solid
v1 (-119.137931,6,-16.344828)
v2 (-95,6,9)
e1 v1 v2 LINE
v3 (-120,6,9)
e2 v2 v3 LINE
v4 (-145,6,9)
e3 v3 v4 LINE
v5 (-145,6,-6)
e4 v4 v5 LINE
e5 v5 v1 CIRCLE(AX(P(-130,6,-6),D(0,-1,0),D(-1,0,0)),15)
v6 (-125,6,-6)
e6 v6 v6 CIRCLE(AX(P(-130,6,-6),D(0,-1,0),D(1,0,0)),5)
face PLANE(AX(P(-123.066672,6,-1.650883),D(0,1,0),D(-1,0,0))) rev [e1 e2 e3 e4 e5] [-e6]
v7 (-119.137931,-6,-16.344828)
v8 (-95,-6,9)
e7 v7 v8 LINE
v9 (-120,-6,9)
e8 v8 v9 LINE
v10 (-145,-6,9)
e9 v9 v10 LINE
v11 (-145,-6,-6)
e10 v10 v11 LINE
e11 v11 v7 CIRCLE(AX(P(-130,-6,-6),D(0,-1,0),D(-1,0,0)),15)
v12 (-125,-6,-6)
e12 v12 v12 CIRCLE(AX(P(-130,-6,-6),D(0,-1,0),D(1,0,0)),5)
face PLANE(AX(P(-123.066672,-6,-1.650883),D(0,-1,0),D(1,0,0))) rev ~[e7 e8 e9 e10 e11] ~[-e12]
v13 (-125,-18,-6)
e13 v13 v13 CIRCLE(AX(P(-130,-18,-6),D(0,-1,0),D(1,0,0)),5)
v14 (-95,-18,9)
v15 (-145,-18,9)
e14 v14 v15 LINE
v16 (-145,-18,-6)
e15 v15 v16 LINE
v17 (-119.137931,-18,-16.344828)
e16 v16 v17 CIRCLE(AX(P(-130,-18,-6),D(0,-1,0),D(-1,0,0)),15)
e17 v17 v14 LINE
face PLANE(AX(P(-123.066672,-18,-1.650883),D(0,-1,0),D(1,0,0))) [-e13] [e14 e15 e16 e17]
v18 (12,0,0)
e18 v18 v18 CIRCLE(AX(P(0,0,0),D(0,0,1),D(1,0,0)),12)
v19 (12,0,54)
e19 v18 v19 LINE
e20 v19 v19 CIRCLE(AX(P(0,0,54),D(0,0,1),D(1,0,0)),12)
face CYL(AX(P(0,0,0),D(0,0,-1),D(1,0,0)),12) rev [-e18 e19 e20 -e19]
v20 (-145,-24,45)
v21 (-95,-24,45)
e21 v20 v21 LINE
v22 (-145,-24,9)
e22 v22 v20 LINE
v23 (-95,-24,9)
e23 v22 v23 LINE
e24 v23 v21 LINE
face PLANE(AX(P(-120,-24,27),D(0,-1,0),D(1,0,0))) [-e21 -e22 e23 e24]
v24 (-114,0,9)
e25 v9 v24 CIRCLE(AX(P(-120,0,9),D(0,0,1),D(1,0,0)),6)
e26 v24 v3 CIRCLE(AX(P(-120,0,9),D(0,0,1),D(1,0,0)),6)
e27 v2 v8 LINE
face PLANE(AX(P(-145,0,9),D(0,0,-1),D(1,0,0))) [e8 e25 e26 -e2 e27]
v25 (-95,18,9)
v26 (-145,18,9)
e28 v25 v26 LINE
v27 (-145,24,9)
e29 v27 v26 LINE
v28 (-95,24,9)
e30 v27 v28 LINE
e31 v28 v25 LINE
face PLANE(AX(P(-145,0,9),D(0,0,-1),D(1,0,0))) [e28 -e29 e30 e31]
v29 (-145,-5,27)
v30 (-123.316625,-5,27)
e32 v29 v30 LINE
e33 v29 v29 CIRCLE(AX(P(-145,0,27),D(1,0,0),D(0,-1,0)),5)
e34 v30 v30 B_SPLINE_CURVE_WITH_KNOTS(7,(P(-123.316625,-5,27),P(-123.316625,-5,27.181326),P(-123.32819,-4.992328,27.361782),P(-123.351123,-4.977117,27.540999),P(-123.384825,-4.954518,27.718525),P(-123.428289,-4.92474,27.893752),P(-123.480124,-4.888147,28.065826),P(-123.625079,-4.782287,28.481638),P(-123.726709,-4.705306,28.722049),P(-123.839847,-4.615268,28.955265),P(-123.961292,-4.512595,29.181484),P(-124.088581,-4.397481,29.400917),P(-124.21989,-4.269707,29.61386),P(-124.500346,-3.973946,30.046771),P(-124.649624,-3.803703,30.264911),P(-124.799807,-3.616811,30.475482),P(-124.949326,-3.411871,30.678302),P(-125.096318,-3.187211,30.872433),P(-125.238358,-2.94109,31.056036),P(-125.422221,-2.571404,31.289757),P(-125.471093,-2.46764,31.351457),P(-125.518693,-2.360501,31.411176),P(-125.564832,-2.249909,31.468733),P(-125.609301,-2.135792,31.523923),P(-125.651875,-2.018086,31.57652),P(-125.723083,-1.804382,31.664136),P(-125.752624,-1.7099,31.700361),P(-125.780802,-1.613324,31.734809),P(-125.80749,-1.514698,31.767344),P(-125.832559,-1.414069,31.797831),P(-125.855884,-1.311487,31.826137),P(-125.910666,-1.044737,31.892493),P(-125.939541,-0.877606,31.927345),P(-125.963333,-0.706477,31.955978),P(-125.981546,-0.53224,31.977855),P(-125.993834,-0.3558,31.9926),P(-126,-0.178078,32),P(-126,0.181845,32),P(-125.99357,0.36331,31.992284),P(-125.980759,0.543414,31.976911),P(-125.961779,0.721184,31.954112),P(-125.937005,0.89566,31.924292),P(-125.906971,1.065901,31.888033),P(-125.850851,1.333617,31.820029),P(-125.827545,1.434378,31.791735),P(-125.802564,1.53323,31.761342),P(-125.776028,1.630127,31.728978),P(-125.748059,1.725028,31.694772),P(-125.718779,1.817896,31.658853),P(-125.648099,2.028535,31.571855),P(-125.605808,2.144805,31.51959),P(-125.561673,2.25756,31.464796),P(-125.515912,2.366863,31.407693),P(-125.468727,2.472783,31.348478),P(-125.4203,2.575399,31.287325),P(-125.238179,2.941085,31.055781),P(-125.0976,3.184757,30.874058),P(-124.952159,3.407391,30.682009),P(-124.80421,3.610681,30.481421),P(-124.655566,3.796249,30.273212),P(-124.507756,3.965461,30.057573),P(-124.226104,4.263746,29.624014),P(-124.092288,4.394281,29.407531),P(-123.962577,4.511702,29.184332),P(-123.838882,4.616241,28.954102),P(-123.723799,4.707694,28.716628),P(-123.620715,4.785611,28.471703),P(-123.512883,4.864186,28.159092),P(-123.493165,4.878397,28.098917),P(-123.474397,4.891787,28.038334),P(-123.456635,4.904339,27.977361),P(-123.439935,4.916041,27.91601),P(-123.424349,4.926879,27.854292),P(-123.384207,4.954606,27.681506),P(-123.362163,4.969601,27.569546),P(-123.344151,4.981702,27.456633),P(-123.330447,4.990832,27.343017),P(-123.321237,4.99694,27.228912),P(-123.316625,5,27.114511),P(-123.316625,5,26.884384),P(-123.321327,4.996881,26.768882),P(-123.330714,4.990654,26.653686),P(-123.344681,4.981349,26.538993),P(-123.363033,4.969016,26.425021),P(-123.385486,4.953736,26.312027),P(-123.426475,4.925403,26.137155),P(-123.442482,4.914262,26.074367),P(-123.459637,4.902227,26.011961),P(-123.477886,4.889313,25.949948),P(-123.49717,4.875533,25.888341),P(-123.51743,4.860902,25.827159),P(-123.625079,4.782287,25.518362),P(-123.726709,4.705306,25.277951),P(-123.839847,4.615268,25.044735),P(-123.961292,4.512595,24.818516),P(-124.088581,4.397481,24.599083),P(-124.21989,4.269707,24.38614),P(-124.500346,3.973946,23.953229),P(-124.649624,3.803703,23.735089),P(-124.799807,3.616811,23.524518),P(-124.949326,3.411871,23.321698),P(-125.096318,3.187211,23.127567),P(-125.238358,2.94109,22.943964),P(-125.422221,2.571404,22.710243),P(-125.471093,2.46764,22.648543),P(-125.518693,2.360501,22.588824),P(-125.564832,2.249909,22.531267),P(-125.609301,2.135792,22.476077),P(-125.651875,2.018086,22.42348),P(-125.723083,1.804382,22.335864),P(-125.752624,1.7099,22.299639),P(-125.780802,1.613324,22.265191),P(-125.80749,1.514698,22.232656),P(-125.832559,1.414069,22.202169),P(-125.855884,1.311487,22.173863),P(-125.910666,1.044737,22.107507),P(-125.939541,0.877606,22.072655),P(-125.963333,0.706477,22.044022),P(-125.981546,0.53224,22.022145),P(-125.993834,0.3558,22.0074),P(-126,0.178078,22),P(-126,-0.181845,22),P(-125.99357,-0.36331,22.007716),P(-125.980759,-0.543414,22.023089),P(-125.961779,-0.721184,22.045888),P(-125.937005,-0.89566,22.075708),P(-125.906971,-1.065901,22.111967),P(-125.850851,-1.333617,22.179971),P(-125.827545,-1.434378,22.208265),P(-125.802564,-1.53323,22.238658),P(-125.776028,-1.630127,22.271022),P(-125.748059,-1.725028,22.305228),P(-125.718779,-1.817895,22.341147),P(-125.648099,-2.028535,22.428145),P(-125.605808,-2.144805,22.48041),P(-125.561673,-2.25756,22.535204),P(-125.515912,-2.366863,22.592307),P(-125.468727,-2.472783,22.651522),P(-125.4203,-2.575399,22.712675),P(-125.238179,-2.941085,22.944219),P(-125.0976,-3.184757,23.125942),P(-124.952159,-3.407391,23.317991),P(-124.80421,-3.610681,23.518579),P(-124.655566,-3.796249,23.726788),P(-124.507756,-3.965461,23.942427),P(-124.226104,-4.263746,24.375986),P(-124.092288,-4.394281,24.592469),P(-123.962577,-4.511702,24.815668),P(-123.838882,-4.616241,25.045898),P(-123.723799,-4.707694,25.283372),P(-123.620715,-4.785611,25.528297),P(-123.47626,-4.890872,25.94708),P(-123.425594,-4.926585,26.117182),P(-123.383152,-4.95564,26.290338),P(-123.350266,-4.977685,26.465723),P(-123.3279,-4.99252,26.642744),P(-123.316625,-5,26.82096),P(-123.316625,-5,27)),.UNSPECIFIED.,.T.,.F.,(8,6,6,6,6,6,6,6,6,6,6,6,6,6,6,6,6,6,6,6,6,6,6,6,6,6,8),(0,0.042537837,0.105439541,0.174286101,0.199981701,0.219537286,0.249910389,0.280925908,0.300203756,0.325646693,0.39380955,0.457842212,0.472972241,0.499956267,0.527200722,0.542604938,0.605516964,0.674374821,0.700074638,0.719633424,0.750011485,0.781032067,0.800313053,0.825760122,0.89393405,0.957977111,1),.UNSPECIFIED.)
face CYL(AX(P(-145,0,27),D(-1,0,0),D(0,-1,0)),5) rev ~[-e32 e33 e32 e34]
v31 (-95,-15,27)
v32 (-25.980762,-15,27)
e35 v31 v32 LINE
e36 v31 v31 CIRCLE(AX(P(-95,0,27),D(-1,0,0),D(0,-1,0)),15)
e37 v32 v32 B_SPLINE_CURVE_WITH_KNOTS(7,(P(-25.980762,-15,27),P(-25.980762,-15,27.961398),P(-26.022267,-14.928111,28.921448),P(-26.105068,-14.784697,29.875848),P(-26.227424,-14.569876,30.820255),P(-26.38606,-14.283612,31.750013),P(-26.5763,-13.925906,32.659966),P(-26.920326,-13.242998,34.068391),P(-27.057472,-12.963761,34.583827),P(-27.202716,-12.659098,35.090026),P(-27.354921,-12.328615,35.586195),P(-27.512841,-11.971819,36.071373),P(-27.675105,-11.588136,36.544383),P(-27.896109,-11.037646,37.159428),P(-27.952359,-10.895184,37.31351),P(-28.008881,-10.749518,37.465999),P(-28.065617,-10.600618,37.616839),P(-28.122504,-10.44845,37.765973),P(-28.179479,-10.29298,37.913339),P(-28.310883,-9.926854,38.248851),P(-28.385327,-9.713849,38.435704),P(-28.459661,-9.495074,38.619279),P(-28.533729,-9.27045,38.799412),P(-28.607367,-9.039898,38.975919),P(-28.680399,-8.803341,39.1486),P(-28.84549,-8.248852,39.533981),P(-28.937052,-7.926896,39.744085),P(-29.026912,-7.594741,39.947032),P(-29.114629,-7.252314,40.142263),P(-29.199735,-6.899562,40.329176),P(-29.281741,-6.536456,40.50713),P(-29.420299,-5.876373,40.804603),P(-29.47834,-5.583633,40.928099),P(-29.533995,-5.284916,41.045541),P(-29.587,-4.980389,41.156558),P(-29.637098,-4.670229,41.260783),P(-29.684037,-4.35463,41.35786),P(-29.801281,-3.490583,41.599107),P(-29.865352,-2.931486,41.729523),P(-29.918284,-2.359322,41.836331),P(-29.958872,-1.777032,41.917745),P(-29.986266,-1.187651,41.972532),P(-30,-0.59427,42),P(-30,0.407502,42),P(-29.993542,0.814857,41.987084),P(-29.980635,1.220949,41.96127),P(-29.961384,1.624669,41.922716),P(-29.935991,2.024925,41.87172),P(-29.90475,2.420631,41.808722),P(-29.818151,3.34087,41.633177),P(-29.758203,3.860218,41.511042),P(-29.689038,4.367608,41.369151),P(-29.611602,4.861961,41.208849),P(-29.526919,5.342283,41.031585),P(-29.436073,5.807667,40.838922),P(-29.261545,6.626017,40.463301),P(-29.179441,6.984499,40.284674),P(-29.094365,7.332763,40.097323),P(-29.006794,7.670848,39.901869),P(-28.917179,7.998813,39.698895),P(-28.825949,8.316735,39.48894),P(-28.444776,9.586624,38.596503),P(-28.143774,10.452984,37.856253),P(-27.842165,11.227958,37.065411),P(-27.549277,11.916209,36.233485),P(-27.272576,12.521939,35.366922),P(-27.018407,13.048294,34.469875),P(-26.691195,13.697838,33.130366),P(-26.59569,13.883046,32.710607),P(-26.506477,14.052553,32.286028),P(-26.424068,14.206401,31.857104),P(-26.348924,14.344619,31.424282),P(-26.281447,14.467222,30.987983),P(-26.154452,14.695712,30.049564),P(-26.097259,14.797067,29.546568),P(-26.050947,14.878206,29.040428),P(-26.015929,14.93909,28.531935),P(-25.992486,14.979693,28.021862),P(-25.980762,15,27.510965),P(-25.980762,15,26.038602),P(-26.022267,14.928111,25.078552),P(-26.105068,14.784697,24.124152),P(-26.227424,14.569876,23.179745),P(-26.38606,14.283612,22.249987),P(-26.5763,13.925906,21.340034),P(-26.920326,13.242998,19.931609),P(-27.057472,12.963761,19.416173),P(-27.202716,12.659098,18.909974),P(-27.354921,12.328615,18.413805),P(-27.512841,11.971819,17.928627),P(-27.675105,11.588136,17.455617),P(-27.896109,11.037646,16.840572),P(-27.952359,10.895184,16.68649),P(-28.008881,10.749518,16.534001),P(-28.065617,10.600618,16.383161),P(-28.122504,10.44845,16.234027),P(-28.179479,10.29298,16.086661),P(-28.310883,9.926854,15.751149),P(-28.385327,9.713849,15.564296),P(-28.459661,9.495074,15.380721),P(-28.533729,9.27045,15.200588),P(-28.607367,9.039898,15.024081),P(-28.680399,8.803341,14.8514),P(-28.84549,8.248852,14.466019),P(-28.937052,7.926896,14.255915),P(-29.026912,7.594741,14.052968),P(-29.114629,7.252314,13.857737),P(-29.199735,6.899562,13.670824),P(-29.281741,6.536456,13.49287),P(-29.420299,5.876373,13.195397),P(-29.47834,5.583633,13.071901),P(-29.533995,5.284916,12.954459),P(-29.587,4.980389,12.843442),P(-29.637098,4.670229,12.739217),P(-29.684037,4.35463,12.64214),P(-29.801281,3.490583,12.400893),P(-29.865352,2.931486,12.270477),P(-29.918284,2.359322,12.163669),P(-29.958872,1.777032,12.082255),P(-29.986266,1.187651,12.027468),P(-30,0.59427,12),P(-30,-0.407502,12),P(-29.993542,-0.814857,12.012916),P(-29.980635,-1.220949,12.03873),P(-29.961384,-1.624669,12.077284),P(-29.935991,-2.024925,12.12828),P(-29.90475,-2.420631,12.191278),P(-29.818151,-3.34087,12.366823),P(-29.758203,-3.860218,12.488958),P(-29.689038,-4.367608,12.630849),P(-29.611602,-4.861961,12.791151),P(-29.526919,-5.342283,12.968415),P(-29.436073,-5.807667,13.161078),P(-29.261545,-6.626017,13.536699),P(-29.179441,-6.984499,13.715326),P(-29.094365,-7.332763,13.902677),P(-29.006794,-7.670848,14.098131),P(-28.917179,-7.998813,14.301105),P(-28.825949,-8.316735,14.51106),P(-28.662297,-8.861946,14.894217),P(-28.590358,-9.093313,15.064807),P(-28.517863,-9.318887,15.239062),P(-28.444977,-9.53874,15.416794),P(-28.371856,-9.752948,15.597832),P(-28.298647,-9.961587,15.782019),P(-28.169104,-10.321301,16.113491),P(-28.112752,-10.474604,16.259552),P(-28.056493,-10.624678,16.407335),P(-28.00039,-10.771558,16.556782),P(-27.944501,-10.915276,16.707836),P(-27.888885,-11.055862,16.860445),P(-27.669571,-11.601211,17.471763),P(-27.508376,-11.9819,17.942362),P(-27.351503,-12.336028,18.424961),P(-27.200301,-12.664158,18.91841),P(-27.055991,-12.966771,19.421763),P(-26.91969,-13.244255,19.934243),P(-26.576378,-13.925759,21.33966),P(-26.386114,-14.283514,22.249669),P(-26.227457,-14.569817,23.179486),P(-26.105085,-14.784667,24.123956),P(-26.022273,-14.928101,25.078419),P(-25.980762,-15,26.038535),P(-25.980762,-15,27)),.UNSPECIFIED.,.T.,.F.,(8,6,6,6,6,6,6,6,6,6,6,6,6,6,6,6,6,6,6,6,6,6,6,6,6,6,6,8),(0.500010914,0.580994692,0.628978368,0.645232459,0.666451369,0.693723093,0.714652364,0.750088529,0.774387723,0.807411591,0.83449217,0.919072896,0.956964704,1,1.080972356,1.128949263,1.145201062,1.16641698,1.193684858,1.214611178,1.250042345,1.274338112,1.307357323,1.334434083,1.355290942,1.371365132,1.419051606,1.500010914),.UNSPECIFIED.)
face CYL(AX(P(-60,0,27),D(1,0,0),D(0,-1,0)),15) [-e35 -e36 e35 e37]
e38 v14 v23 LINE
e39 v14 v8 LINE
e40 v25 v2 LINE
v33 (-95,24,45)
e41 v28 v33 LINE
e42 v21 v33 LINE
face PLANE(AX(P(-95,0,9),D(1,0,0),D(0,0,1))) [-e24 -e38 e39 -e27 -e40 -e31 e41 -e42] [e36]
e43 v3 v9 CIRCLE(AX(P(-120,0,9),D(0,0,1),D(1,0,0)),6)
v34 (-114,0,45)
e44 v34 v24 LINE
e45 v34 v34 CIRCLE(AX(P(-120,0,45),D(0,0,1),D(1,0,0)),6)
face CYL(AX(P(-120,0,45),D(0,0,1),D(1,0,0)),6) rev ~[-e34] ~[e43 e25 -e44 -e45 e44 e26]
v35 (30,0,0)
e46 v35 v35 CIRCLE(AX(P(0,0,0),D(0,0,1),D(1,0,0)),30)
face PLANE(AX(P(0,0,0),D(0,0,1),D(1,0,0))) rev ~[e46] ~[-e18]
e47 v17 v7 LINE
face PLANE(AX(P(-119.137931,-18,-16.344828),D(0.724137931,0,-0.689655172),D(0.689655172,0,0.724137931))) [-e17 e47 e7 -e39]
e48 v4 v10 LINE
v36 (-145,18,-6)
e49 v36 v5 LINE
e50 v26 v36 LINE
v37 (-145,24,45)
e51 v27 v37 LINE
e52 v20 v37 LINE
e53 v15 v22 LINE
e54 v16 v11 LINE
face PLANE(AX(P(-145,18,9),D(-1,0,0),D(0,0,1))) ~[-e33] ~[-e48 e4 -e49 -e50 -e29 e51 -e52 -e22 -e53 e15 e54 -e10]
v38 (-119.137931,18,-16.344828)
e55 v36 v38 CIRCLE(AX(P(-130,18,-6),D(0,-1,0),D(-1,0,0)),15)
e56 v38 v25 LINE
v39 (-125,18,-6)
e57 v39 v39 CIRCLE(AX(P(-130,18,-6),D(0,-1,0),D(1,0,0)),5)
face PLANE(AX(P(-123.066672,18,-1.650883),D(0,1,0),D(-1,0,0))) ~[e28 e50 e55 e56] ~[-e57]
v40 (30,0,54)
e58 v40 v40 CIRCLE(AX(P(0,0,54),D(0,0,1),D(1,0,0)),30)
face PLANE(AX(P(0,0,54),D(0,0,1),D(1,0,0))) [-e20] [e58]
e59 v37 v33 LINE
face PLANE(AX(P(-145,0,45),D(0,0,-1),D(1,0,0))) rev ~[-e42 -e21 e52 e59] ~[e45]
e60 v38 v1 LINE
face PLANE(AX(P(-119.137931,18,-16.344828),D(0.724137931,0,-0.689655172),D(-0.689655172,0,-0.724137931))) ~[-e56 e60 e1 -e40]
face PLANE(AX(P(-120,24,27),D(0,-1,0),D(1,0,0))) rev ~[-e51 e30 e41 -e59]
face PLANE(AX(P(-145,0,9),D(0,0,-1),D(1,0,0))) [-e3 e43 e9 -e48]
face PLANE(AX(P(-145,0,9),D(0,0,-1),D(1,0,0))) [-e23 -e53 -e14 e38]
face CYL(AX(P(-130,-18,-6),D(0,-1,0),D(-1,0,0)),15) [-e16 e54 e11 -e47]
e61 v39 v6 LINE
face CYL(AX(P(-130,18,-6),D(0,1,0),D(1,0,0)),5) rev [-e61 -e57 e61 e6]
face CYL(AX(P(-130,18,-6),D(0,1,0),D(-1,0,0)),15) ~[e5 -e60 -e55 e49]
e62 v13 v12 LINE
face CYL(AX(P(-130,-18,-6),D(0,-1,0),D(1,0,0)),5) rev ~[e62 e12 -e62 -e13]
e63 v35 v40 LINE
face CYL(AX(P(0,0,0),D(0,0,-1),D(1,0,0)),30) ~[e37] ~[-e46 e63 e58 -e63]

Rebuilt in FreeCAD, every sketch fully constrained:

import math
import FreeCAD as App
import Part
import Sketcher

V = App.Vector
Q = App.Units.Quantity

doc = App.newDocument("Part")
body = doc.addObject("PartDesign::Body", "Body")

sketch1 = body.newObject("Sketcher::SketchObject", "Sketch")
sketch1.AttachmentSupport = (doc.getObject("XY_Plane"), [""])
sketch1.MapMode = "FlatFace"
sketch1.addGeometry([
    Part.Circle(V(0, 0, 0), V(0, 0, 1), 30),
    Part.Circle(V(0, 0, 0), V(0, 0, 1), 12),
], False)
sketch1.addConstraint([
    Sketcher.Constraint("Coincident", 0, 3, -1, 1),
    Sketcher.Constraint("Coincident", 1, 3, -1, 1),
    Sketcher.Constraint("Diameter", 0, Q("60 mm")),
    Sketcher.Constraint("Diameter", 1, Q("24 mm")),
])
pad1 = body.newObject("PartDesign::Pad", "Pad")
pad1.Profile = sketch1
pad1.Length = 54
body2 = doc.addObject("PartDesign::Body", "Body001")

sketch2 = body2.newObject("Sketcher::SketchObject", "Sketch001")
sketch2.AttachmentSupport = (doc.getObject("XZ_Plane001"), [""])
sketch2.MapMode = "FlatFace"
sketch2.addGeometry([
    Part.LineSegment(V(-145, 45, 0), V(-145, 9, 0)),
    Part.LineSegment(V(-145, 9, 0), V(-95, 9, 0)),
    Part.LineSegment(V(-95, 9, 0), V(-95, 45, 0)),
    Part.LineSegment(V(-95, 45, 0), V(-145, 45, 0)),
], False)
sketch2.addConstraint([
    Sketcher.Constraint("Coincident", 0, 2, 1, 1),
    Sketcher.Constraint("Coincident", 1, 2, 2, 1),
    Sketcher.Constraint("Coincident", 2, 2, 3, 1),
    Sketcher.Constraint("Coincident", 3, 2, 0, 1),
    Sketcher.Constraint("Vertical", 0),
    Sketcher.Constraint("Horizontal", 1),
    Sketcher.Constraint("Vertical", 2),
    Sketcher.Constraint("Horizontal", 3),
    Sketcher.Constraint("DistanceX", 1, 1, 1, 2, Q("50 mm")),
    Sketcher.Constraint("DistanceY", 0, 2, 0, 1, Q("36 mm")),
    Sketcher.Constraint("DistanceX", 0, 2, -1, 1, Q("145 mm")),
    Sketcher.Constraint("DistanceY", -1, 1, 0, 2, Q("9 mm")),
])
pad2 = body2.newObject("PartDesign::Pad", "Pad001")
pad2.Profile = sketch2
pad2.Length = 48
pad2.Midplane = True
body.AllowCompound = True
doc.recompute()

boolean = body.newObject("PartDesign::Boolean", "Boolean")
boolean.Type = "Fuse"
boolean.addObjects([body2])

sketch3 = body.newObject("Sketcher::SketchObject", "Sketch002")
sketch3.AttachmentSupport = (doc.getObject("XY_Plane"), [""])
sketch3.MapMode = "FlatFace"
sketch3.AttachmentOffset = App.Placement(V(0, 0, 27), App.Rotation())
sketch3.addGeometry([
    Part.LineSegment(V(-120, 0, 0), V(-120, -15, 0)),
    Part.LineSegment(V(-120, -15, 0), V(0, -15, 0)),
    Part.LineSegment(V(0, -15, 0), V(0, 0, 0)),
    Part.LineSegment(V(0, 0, 0), V(-120, 0, 0)),
], False)
sketch3.addConstraint([
    Sketcher.Constraint("Coincident", 0, 2, 1, 1),
    Sketcher.Constraint("Coincident", 1, 2, 2, 1),
    Sketcher.Constraint("Coincident", 2, 2, 3, 1),
    Sketcher.Constraint("Coincident", 3, 2, 0, 1),
    Sketcher.Constraint("Vertical", 0),
    Sketcher.Constraint("Horizontal", 1),
    Sketcher.Constraint("Vertical", 2),
    Sketcher.Constraint("Horizontal", 3),
    Sketcher.Constraint("Coincident", 2, 2, -1, 1),
    Sketcher.Constraint("DistanceX", 1, 1, 1, 2, Q("120 mm")),
    Sketcher.Constraint("DistanceY", 0, 2, 0, 1, Q("15 mm")),
])
revolution = body.newObject("PartDesign::Revolution", "Revolution")
revolution.Profile = sketch3
revolution.ReferenceAxis = (sketch3, ["H_Axis"])
revolution.Angle = 360

sketch4 = body.newObject("Sketcher::SketchObject", "Sketch003")
sketch4.AttachmentSupport = (doc.getObject("XY_Plane"), [""])
sketch4.MapMode = "FlatFace"
sketch4.AttachmentOffset = App.Placement(V(0, 0, 45), App.Rotation())
sketch4.addGeometry(Part.Circle(V(-120, 0, 0), V(0, 0, 1), 6), False)
sketch4.addConstraint([
    Sketcher.Constraint("PointOnObject", 0, 3, -1),
    Sketcher.Constraint("Diameter", 0, Q("12 mm")),
    Sketcher.Constraint("DistanceX", 0, 3, -1, 1, Q("120 mm")),
])
pocket1 = body.newObject("PartDesign::Pocket", "Pocket")
pocket1.Profile = sketch4
pocket1.Type = "ThroughAll"

sketch5 = body.newObject("Sketcher::SketchObject", "Sketch004")
sketch5.AttachmentSupport = (doc.getObject("YZ_Plane"), [""])
sketch5.MapMode = "FlatFace"
sketch5.AttachmentOffset = App.Placement(V(0, 0, -145), App.Rotation())
sketch5.addGeometry(Part.Circle(V(0, 27, 0), V(0, 0, 1), 5), False)
sketch5.addConstraint([
    Sketcher.Constraint("PointOnObject", 0, 3, -2),
    Sketcher.Constraint("Diameter", 0, Q("10 mm")),
    Sketcher.Constraint("DistanceY", -1, 1, 0, 3, Q("27 mm")),
])
pocket2 = body.newObject("PartDesign::Pocket", "Pocket001")
pocket2.Profile = sketch5
pocket2.Length = 21.684375
pocket2.Reversed = True

sketch6 = body.newObject("Sketcher::SketchObject", "Sketch005")
sketch6.AttachmentSupport = (doc.getObject("XZ_Plane"), [""])
sketch6.MapMode = "FlatFace"
sketch6.AttachmentOffset = App.Placement(V(0, 0, 18), App.Rotation())
sketch6.addGeometry([
    Part.LineSegment(V(-119, -16, 0), V(-95, 9, 0)),
    Part.LineSegment(V(-95, 9, 0), V(-145, 9, 0)),
    Part.LineSegment(V(-145, 9, 0), V(-145, -6, 0)),
    Part.ArcOfCircle(Part.Circle(V(-130, -6, 0), V(0, 0, 1), 15), math.radians(180), math.radians(316)),
    Part.Circle(V(-130, -6, 0), V(0, 0, 1), 5),
], False)
sketch6.addConstraint([
    Sketcher.Constraint("Coincident", 0, 2, 1, 1),
    Sketcher.Constraint("Coincident", 1, 2, 2, 1),
    Sketcher.Constraint("Tangent", 2, 2, 3, 1),
    Sketcher.Constraint("Tangent", 3, 2, 0, 1),
    Sketcher.Constraint("Horizontal", 1),
    Sketcher.Constraint("Vertical", 2),
    Sketcher.Constraint("Coincident", 4, 3, 3, 3),
    Sketcher.Constraint("Diameter", 4, Q("10 mm")),
    Sketcher.Constraint("Radius", 3, Q("15 mm")),
    Sketcher.Constraint("DistanceX", 1, 2, 1, 1, Q("50 mm")),
    Sketcher.Constraint("DistanceY", 2, 2, 2, 1, Q("15 mm")),
    Sketcher.Constraint("DistanceX", 3, 3, -1, 1, Q("130 mm")),
    Sketcher.Constraint("DistanceY", 3, 3, -1, 1, Q("6 mm")),
])
pad3 = body.newObject("PartDesign::Pad", "Pad002")
pad3.Profile = sketch6
pad3.Length = 12
pad3.Reversed = True
body3 = doc.addObject("PartDesign::Body", "Body002")
doc.recompute()

body3.BaseFeature = body
doc.recompute()

mirroring = doc.addObject("Part::Mirroring", "Mirroring")
mirroring.Source = body
mirroring.Base = V(0, 0, 0)
mirroring.Normal = V(0, -1, 0)
body4 = doc.addObject("PartDesign::Body", "Body003")
body4.BaseFeature = mirroring
boolean2 = body3.newObject("PartDesign::Boolean", "Boolean001")
boolean2.Type = "Fuse"
boolean2.addObjects([body4])
doc.recompute()

sketch7 = body3.newObject("Sketcher::SketchObject", "Sketch006")
sketch7.AttachmentSupport = (doc.getObject("XY_Plane002"), [""])
sketch7.MapMode = "FlatFace"
sketch7.AttachmentOffset = App.Placement(V(0, 0, 54), App.Rotation())
sketch7.addGeometry(Part.Circle(V(0, 0, 0), V(0, 0, 1), 12), False)
sketch7.addConstraint([
    Sketcher.Constraint("Coincident", 0, 3, -1, 1),
    Sketcher.Constraint("Diameter", 0, Q("24 mm")),
])
pocket3 = body3.newObject("PartDesign::Pocket", "Pocket002")
pocket3.Profile = sketch7
pocket3.Type = "ThroughAll"
mirroring.Visibility = False

doc.recompute()
